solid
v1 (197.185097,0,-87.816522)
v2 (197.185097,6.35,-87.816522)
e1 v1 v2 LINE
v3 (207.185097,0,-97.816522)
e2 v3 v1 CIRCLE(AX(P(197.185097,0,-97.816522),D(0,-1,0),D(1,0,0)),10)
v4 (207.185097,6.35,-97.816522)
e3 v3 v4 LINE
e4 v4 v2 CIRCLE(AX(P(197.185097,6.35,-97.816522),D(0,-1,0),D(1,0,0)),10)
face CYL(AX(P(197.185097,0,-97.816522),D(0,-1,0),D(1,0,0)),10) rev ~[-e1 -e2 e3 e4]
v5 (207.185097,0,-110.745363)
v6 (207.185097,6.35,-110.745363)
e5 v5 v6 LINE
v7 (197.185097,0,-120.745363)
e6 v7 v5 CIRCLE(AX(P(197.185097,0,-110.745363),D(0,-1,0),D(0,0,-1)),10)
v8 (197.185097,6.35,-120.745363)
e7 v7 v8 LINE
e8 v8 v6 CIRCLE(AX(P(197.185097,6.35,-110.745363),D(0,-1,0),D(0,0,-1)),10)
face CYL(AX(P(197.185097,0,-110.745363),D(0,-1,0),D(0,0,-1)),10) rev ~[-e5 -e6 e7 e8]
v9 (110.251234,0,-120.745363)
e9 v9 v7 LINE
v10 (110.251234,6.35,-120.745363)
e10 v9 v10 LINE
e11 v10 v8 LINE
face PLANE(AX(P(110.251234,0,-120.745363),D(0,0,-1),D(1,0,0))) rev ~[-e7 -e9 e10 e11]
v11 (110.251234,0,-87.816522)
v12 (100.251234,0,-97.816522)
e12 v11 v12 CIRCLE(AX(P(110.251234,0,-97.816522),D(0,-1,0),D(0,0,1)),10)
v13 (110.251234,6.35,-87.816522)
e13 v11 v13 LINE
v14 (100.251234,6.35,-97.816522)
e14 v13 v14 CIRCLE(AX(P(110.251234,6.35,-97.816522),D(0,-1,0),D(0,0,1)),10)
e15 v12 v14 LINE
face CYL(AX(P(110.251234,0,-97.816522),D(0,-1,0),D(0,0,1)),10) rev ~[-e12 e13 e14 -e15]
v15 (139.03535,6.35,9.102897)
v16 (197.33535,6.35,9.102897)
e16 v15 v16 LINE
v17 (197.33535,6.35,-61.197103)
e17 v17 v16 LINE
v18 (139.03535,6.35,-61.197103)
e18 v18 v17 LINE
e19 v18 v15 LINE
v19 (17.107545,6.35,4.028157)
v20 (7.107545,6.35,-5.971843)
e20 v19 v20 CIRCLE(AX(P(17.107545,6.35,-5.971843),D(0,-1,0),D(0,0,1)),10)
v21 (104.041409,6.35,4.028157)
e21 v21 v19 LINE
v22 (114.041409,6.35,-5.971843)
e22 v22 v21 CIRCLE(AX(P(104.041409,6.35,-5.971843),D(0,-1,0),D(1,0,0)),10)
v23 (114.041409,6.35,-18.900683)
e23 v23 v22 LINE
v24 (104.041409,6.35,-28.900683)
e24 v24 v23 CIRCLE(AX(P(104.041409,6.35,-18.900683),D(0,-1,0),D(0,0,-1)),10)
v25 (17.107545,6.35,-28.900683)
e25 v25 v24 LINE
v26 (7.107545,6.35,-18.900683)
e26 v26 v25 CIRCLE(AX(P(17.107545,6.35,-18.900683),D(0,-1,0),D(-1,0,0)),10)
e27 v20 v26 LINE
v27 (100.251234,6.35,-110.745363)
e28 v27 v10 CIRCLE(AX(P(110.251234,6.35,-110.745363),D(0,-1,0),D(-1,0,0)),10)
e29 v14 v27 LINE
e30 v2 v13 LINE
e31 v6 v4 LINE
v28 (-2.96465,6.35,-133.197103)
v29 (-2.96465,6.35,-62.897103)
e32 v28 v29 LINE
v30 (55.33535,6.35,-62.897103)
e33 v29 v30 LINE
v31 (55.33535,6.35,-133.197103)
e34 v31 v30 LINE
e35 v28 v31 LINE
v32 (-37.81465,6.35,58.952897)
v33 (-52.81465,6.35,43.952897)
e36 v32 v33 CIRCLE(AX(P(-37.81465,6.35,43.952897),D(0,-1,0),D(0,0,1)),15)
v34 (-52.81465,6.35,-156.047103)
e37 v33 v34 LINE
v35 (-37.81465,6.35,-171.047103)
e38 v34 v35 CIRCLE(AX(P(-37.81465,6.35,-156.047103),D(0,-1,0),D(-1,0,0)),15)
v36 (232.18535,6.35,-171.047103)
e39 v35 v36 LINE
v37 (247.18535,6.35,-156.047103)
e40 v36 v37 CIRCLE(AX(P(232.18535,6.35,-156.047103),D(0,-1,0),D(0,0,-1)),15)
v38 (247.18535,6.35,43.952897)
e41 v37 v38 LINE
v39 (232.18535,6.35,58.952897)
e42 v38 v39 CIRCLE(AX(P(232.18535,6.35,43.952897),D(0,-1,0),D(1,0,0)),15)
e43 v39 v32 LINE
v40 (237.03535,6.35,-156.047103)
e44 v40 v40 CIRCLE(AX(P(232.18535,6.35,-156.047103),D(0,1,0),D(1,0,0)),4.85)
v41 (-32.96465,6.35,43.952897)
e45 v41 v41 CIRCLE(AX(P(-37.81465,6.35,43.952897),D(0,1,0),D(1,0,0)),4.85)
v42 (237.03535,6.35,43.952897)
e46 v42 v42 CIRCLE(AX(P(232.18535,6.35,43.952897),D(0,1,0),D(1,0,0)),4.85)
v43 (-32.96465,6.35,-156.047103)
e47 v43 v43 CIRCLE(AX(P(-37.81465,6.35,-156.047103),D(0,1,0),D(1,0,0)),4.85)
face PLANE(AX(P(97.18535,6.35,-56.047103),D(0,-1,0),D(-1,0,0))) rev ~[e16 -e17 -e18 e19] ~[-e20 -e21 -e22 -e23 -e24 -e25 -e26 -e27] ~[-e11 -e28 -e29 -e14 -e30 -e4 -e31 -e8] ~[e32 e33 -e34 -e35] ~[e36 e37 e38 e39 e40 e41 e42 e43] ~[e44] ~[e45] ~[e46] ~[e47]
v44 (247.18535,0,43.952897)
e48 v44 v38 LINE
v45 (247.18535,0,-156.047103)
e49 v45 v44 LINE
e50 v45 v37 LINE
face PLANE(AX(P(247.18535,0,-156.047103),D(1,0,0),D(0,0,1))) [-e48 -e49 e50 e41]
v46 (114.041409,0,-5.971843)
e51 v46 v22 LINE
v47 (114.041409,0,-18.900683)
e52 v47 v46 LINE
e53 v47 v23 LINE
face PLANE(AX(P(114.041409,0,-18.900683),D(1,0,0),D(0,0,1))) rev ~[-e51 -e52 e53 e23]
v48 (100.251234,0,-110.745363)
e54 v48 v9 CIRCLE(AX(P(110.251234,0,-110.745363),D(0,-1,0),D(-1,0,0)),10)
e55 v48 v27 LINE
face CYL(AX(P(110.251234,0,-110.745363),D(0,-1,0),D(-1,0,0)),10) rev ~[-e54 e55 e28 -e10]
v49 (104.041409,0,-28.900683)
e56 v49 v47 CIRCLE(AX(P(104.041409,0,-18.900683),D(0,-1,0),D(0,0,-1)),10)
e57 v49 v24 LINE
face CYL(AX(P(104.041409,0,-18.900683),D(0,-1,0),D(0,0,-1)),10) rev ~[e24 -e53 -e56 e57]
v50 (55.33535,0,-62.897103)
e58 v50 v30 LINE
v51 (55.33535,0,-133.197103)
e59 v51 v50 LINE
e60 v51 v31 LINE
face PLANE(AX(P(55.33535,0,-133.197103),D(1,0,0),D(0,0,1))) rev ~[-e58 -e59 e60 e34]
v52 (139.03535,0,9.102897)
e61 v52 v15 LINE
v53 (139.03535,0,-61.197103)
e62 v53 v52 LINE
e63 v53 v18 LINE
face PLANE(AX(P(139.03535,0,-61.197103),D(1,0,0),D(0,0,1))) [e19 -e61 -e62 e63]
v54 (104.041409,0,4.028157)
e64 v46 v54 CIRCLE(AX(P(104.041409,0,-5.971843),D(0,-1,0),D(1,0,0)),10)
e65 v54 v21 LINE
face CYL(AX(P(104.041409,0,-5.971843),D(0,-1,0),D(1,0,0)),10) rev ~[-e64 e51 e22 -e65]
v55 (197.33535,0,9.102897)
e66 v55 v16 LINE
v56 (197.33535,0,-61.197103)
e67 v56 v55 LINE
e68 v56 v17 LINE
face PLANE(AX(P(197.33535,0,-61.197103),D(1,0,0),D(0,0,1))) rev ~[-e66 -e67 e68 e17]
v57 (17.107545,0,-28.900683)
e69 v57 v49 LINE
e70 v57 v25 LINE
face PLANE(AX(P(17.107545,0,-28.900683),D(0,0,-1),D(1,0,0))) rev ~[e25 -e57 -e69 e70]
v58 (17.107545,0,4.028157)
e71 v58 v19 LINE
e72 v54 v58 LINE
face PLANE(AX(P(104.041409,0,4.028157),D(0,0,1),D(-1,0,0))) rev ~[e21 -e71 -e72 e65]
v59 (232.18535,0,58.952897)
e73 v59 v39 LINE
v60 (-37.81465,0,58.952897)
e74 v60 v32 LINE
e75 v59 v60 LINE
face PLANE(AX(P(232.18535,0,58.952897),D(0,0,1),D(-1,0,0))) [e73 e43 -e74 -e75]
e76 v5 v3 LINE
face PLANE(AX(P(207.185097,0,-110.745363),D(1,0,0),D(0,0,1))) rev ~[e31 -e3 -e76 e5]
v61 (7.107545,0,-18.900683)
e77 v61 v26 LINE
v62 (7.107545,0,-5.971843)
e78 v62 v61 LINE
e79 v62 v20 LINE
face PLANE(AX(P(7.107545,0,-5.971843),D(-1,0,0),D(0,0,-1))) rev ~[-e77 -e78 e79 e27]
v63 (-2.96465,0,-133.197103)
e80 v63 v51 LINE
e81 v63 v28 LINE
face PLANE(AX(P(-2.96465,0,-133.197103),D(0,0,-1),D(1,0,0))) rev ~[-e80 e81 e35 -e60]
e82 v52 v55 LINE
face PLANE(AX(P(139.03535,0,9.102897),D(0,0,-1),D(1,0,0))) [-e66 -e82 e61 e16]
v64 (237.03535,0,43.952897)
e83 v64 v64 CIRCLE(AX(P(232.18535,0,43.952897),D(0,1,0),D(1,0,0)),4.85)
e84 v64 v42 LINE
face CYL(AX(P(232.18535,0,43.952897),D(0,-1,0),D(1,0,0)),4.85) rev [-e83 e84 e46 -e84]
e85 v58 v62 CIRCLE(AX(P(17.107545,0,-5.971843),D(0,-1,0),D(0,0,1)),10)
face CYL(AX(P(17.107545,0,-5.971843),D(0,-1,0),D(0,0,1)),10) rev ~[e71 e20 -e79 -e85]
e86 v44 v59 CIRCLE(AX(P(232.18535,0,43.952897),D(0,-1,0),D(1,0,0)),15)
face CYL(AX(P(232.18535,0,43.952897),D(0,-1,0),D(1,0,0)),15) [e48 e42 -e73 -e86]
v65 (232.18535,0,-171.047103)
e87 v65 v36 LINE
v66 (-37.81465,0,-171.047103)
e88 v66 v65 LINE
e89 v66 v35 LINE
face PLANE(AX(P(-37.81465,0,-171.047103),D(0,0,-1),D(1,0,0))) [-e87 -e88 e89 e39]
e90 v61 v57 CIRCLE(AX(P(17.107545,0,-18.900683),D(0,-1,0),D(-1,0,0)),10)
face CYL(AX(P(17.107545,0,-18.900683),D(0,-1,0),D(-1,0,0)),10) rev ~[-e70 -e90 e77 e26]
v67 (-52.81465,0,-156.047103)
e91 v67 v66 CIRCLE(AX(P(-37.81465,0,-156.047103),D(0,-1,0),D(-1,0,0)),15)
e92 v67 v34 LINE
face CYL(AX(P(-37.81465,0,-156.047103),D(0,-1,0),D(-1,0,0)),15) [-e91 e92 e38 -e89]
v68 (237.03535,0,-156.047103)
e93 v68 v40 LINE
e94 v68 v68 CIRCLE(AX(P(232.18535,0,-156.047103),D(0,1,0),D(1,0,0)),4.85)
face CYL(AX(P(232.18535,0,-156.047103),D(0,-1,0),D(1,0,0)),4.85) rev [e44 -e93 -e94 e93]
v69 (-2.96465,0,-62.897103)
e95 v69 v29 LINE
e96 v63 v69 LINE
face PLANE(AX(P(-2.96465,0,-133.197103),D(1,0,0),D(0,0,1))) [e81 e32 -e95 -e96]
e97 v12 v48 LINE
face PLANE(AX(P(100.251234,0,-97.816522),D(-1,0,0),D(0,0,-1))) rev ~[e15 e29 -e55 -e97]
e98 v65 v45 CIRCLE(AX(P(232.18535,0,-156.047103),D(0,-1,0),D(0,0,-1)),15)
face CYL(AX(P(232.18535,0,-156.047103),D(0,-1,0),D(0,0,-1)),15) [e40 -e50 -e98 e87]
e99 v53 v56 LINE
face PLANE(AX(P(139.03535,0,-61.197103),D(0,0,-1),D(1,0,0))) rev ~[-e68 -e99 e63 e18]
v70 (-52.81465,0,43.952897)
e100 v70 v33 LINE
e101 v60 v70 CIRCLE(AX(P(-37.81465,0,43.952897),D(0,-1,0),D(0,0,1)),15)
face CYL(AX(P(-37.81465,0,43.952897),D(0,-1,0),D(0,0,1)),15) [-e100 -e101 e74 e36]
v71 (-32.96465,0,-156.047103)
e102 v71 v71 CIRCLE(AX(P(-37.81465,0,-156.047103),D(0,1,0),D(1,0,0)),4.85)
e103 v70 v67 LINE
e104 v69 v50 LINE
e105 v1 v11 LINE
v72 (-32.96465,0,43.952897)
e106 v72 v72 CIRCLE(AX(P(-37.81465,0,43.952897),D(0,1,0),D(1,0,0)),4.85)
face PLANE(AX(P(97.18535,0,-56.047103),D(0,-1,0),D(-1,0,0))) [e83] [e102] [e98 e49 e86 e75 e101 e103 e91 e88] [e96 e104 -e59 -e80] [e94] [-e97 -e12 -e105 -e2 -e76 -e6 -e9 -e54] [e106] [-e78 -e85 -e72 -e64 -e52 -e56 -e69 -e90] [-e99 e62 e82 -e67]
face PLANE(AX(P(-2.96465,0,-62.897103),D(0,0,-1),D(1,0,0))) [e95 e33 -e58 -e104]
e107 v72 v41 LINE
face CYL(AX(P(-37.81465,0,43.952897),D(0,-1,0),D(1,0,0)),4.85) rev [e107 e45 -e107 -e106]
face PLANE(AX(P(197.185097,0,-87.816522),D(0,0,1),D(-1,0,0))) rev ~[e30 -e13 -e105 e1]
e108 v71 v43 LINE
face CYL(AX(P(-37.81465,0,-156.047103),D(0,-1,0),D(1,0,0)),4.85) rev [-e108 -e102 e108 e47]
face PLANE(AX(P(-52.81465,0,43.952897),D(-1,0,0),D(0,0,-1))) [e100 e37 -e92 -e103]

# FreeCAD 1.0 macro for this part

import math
import FreeCAD as App
import Part
import Sketcher
Q = App.Units.Quantity

doc = App.newDocument("Part")
params = doc.addObject("Spreadsheet::Sheet", "Params")
for row, (alias, value) in enumerate([
    ("sketch1_radius", "15 mm"),
    ("sketch1_diameter", "9.7 mm"),
    ("sketch1_width", "270 mm"),
    ("sketch1_height", "200 mm"),
    ("pad1_length", "6.35 mm"),
    ("sketch2_width", "58.3 mm"),
    ("sketch2_height", "70.3 mm"),
    ("pocket1_length", "6.35 mm"),
    ("sketch3_radius", "10 mm"),
    ("pocket2_length", "6.35 mm"),
], start=1):
    params.set(f"A{row}", alias)
    params.set(f"B{row}", "=" + value)
    params.setAlias(f"B{row}", alias)

body = doc.addObject("PartDesign::Body", "Body")

sketch1 = body.newObject("Sketcher::SketchObject", "Sketch")
sketch1.AttachmentSupport = (doc.getObject("XZ_Plane"), [""])
sketch1.MapMode = "FlatFace"
sketch1.addGeometry([
    Part.LineSegment(App.Vector(232.2, -171, 0), App.Vector(-37.8, -171, 0)),
    Part.ArcOfCircle(Part.Circle(App.Vector(-37.8, -156, 0), App.Vector(0, 0, 1), 15), math.radians(-180), math.radians(-90)),
    Part.LineSegment(App.Vector(-52.8, -156, 0), App.Vector(-52.8, 44, 0)),
    Part.ArcOfCircle(Part.Circle(App.Vector(-37.8, 44, 0), App.Vector(0, 0, 1), 15), math.radians(90), math.radians(180)),
    Part.LineSegment(App.Vector(-37.8, 59, 0), App.Vector(232.2, 59, 0)),
    Part.ArcOfCircle(Part.Circle(App.Vector(232.2, 44, 0), App.Vector(0, 0, 1), 15), math.radians(0), math.radians(90)),
    Part.LineSegment(App.Vector(247.2, 44, 0), App.Vector(247.2, -156, 0)),
    Part.ArcOfCircle(Part.Circle(App.Vector(232.2, -156, 0), App.Vector(0, 0, 1), 15), math.radians(-90), math.radians(0)),
    Part.Circle(App.Vector(232.2, 44, 0), App.Vector(0, 0, 1), 4.8),
    Part.Circle(App.Vector(-37.8, 44, 0), App.Vector(0, 0, 1), 4.8),
    Part.Circle(App.Vector(232.2, -156, 0), App.Vector(0, 0, 1), 4.8),
    Part.Circle(App.Vector(-37.8, -156, 0), App.Vector(0, 0, 1), 4.8),
], False)
sketch1.addConstraint([
    Sketcher.Constraint("Tangent", 0, 2, 1, 2),
    Sketcher.Constraint("Tangent", 1, 1, 2, 1),
    Sketcher.Constraint("Tangent", 2, 2, 3, 2),
    Sketcher.Constraint("Tangent", 3, 1, 4, 1),
    Sketcher.Constraint("Tangent", 4, 2, 5, 2),
    Sketcher.Constraint("Tangent", 5, 1, 6, 1),
    Sketcher.Constraint("Tangent", 6, 2, 7, 2),
    Sketcher.Constraint("Tangent", 7, 1, 0, 1),
    Sketcher.Constraint("Horizontal", 0),
    Sketcher.Constraint("Vertical", 2),
    Sketcher.Constraint("Horizontal", 4),
    Sketcher.Constraint("Vertical", 6),
    Sketcher.Constraint("Coincident", 8, 3, 5, 3),
    Sketcher.Constraint("Coincident", 9, 3, 3, 3),
    Sketcher.Constraint("Coincident", 10, 3, 7, 3),
    Sketcher.Constraint("Coincident", 11, 3, 1, 3),
    Sketcher.Constraint("Equal", 1, 3),
    Sketcher.Constraint("Equal", 3, 5),
    Sketcher.Constraint("Equal", 5, 7),
    Sketcher.Constraint("Equal", 8, 9),
    Sketcher.Constraint("Equal", 9, 10),
    Sketcher.Constraint("Equal", 10, 11),
    Sketcher.Constraint("Radius", 1, Q("15 mm")),
    Sketcher.Constraint("Diameter", 8, Q("9.7 mm")),
    Sketcher.Constraint("DistanceX", 0, 2, 0, 1, Q("270 mm")),
    Sketcher.Constraint("DistanceY", 2, 1, 2, 2, Q("200 mm")),
    Sketcher.Constraint("DistanceX", 1, 3, -1, 1, Q("37.81465 mm")),
    Sketcher.Constraint("DistanceY", 1, 3, -1, 1, Q("156.047103 mm")),
])
sketch1.setExpression("Constraints[22]", "Params.sketch1_radius")
sketch1.setExpression("Constraints[23]", "Params.sketch1_diameter")
sketch1.setExpression("Constraints[24]", "Params.sketch1_width")
sketch1.setExpression("Constraints[25]", "Params.sketch1_height")
pad1 = body.newObject("PartDesign::Pad", "Pad")
pad1.Profile = sketch1
pad1.setExpression("Length", "Params.pad1_length")
pad1.Reversed = True

sketch2 = body.newObject("Sketcher::SketchObject", "Sketch001")
sketch2.AttachmentSupport = (doc.getObject("XZ_Plane"), [""])
sketch2.MapMode = "FlatFace"
sketch2.addGeometry([
    Part.LineSegment(App.Vector(139, 9, 0), App.Vector(139, -61, 0)),
    Part.LineSegment(App.Vector(139, -61, 0), App.Vector(197, -61, 0)),
    Part.LineSegment(App.Vector(197, -61, 0), App.Vector(197, 9, 0)),
    Part.LineSegment(App.Vector(197, 9, 0), App.Vector(139, 9, 0)),
    Part.LineSegment(App.Vector(-3, -63, 0), App.Vector(-3, -133, 0)),
    Part.LineSegment(App.Vector(-3, -133, 0), App.Vector(55, -133, 0)),
    Part.LineSegment(App.Vector(55, -133, 0), App.Vector(55, -63, 0)),
    Part.LineSegment(App.Vector(55, -63, 0), App.Vector(-3, -63, 0)),
], False)
sketch2.addConstraint([
    Sketcher.Constraint("Coincident", 0, 2, 1, 1),
    Sketcher.Constraint("Coincident", 1, 2, 2, 1),
    Sketcher.Constraint("Coincident", 2, 2, 3, 1),
    Sketcher.Constraint("Coincident", 3, 2, 0, 1),
    Sketcher.Constraint("Coincident", 4, 2, 5, 1),
    Sketcher.Constraint("Coincident", 5, 2, 6, 1),
    Sketcher.Constraint("Coincident", 6, 2, 7, 1),
    Sketcher.Constraint("Coincident", 7, 2, 4, 1),
    Sketcher.Constraint("Vertical", 0),
    Sketcher.Constraint("Horizontal", 1),
    Sketcher.Constraint("Vertical", 2),
    Sketcher.Constraint("Horizontal", 3),
    Sketcher.Constraint("Vertical", 4),
    Sketcher.Constraint("Horizontal", 5),
    Sketcher.Constraint("Vertical", 6),
    Sketcher.Constraint("Horizontal", 7),
    Sketcher.Constraint("Equal", 3, 5),
    Sketcher.Constraint("Equal", 2, 4),
    Sketcher.Constraint("DistanceX", 1, 1, 1, 2, Q("58.3 mm")),
    Sketcher.Constraint("DistanceY", 0, 2, 0, 1, Q("70.3 mm")),
    Sketcher.Constraint("DistanceX", 4, 2, 0, 2, Q("142 mm")),
    Sketcher.Constraint("DistanceY", 4, 2, 0, 2, Q("72 mm")),
    Sketcher.Constraint("DistanceX", -1, 1, 0, 2, Q("139.03535 mm")),
    Sketcher.Constraint("DistanceY", 0, 2, -1, 1, Q("61.197103 mm")),
])
sketch2.setExpression("Constraints[18]", "Params.sketch2_width")
sketch2.setExpression("Constraints[19]", "Params.sketch2_height")
pocket1 = body.newObject("PartDesign::Pocket", "Pocket")
pocket1.Profile = sketch2
pocket1.setExpression("Length", "Params.pocket1_length")

sketch3 = body.newObject("Sketcher::SketchObject", "Sketch002")
sketch3.AttachmentSupport = (doc.getObject("XZ_Plane"), [""])
sketch3.MapMode = "FlatFace"
sketch3.addGeometry([
    Part.LineSegment(App.Vector(17, -29, 0), App.Vector(104, -29, 0)),
    Part.ArcOfCircle(Part.Circle(App.Vector(104, -19, 0), App.Vector(0, 0, 1), 10), math.radians(-90), math.radians(0)),
    Part.LineSegment(App.Vector(114, -19, 0), App.Vector(114, -6, 0)),
    Part.ArcOfCircle(Part.Circle(App.Vector(104, -6, 0), App.Vector(0, 0, 1), 10), math.radians(0), math.radians(90)),
    Part.LineSegment(App.Vector(104, 4, 0), App.Vector(17, 4, 0)),
    Part.ArcOfCircle(Part.Circle(App.Vector(17, -6, 0), App.Vector(0, 0, 1), 10), math.radians(90), math.radians(180)),
    Part.LineSegment(App.Vector(7, -6, 0), App.Vector(7, -19, 0)),
    Part.ArcOfCircle(Part.Circle(App.Vector(17, -19, 0), App.Vector(0, 0, 1), 10), math.radians(-180), math.radians(-90)),
    Part.LineSegment(App.Vector(110, -121, 0), App.Vector(197, -121, 0)),
    Part.ArcOfCircle(Part.Circle(App.Vector(197, -111, 0), App.Vector(0, 0, 1), 10), math.radians(-90), math.radians(0)),
    Part.LineSegment(App.Vector(207, -111, 0), App.Vector(207, -98, 0)),
    Part.ArcOfCircle(Part.Circle(App.Vector(197, -98, 0), App.Vector(0, 0, 1), 10), math.radians(0), math.radians(90)),
    Part.LineSegment(App.Vector(197, -88, 0), App.Vector(110, -88, 0)),
    Part.ArcOfCircle(Part.Circle(App.Vector(110, -98, 0), App.Vector(0, 0, 1), 10), math.radians(90), math.radians(180)),
    Part.LineSegment(App.Vector(100, -98, 0), App.Vector(100, -111, 0)),
    Part.ArcOfCircle(Part.Circle(App.Vector(110, -111, 0), App.Vector(0, 0, 1), 10), math.radians(180), math.radians(270)),
], False)
sketch3.addConstraint([
    Sketcher.Constraint("Tangent", 0, 2, 1, 1),
    Sketcher.Constraint("Tangent", 1, 2, 2, 1),
    Sketcher.Constraint("Tangent", 2, 2, 3, 1),
    Sketcher.Constraint("Tangent", 3, 2, 4, 1),
    Sketcher.Constraint("Tangent", 4, 2, 5, 1),
    Sketcher.Constraint("Tangent", 5, 2, 6, 1),
    Sketcher.Constraint("Tangent", 6, 2, 7, 1),
    Sketcher.Constraint("Tangent", 7, 2, 0, 1),
    Sketcher.Constraint("Tangent", 8, 2, 9, 1),
    Sketcher.Constraint("Tangent", 9, 2, 10, 1),
    Sketcher.Constraint("Tangent", 10, 2, 11, 1),
    Sketcher.Constraint("Tangent", 11, 2, 12, 1),
    Sketcher.Constraint("Tangent", 12, 2, 13, 1),
    Sketcher.Constraint("Tangent", 13, 2, 14, 1),
    Sketcher.Constraint("Tangent", 14, 2, 15, 1),
    Sketcher.Constraint("Tangent", 15, 2, 8, 1),
    Sketcher.Constraint("Horizontal", 0),
    Sketcher.Constraint("Vertical", 2),
    Sketcher.Constraint("Horizontal", 4),
    Sketcher.Constraint("Vertical", 6),
    Sketcher.Constraint("Horizontal", 8),
    Sketcher.Constraint("Vertical", 10),
    Sketcher.Constraint("Horizontal", 12),
    Sketcher.Constraint("Vertical", 14),
    Sketcher.Constraint("Equal", 1, 3),
    Sketcher.Constraint("Equal", 3, 5),
    Sketcher.Constraint("Equal", 5, 7),
    Sketcher.Constraint("Equal", 7, 9),
    Sketcher.Constraint("Equal", 9, 11),
    Sketcher.Constraint("Equal", 11, 13),
    Sketcher.Constraint("Equal", 13, 15),
    Sketcher.Constraint("Equal", 4, 8),
    Sketcher.Constraint("Equal", 6, 10),
    Sketcher.Constraint("Radius", 1, Q("10 mm")),
    Sketcher.Constraint("DistanceY", 2, 1, 2, 2, Q("12.92884 mm")),
    Sketcher.Constraint("DistanceX", 0, 1, 0, 2, Q("86.933863 mm")),
    Sketcher.Constraint("DistanceX", -1, 1, 1, 3, Q("104.041409 mm")),
    Sketcher.Constraint("DistanceX", 1, 3, 9, 3, Q("93.143689 mm")),
    Sketcher.Constraint("DistanceY", 9, 3, 1, 3, Q("91.844679 mm")),
    Sketcher.Constraint("DistanceY", 1, 3, -1, 1, Q("18.900683 mm")),
])
sketch3.setExpression("Constraints[33]", "Params.sketch3_radius")
pocket2 = body.newObject("PartDesign::Pocket", "Pocket001")
pocket2.Profile = sketch3
pocket2.setExpression("Length", "Params.pocket2_length")

doc.recompute()
